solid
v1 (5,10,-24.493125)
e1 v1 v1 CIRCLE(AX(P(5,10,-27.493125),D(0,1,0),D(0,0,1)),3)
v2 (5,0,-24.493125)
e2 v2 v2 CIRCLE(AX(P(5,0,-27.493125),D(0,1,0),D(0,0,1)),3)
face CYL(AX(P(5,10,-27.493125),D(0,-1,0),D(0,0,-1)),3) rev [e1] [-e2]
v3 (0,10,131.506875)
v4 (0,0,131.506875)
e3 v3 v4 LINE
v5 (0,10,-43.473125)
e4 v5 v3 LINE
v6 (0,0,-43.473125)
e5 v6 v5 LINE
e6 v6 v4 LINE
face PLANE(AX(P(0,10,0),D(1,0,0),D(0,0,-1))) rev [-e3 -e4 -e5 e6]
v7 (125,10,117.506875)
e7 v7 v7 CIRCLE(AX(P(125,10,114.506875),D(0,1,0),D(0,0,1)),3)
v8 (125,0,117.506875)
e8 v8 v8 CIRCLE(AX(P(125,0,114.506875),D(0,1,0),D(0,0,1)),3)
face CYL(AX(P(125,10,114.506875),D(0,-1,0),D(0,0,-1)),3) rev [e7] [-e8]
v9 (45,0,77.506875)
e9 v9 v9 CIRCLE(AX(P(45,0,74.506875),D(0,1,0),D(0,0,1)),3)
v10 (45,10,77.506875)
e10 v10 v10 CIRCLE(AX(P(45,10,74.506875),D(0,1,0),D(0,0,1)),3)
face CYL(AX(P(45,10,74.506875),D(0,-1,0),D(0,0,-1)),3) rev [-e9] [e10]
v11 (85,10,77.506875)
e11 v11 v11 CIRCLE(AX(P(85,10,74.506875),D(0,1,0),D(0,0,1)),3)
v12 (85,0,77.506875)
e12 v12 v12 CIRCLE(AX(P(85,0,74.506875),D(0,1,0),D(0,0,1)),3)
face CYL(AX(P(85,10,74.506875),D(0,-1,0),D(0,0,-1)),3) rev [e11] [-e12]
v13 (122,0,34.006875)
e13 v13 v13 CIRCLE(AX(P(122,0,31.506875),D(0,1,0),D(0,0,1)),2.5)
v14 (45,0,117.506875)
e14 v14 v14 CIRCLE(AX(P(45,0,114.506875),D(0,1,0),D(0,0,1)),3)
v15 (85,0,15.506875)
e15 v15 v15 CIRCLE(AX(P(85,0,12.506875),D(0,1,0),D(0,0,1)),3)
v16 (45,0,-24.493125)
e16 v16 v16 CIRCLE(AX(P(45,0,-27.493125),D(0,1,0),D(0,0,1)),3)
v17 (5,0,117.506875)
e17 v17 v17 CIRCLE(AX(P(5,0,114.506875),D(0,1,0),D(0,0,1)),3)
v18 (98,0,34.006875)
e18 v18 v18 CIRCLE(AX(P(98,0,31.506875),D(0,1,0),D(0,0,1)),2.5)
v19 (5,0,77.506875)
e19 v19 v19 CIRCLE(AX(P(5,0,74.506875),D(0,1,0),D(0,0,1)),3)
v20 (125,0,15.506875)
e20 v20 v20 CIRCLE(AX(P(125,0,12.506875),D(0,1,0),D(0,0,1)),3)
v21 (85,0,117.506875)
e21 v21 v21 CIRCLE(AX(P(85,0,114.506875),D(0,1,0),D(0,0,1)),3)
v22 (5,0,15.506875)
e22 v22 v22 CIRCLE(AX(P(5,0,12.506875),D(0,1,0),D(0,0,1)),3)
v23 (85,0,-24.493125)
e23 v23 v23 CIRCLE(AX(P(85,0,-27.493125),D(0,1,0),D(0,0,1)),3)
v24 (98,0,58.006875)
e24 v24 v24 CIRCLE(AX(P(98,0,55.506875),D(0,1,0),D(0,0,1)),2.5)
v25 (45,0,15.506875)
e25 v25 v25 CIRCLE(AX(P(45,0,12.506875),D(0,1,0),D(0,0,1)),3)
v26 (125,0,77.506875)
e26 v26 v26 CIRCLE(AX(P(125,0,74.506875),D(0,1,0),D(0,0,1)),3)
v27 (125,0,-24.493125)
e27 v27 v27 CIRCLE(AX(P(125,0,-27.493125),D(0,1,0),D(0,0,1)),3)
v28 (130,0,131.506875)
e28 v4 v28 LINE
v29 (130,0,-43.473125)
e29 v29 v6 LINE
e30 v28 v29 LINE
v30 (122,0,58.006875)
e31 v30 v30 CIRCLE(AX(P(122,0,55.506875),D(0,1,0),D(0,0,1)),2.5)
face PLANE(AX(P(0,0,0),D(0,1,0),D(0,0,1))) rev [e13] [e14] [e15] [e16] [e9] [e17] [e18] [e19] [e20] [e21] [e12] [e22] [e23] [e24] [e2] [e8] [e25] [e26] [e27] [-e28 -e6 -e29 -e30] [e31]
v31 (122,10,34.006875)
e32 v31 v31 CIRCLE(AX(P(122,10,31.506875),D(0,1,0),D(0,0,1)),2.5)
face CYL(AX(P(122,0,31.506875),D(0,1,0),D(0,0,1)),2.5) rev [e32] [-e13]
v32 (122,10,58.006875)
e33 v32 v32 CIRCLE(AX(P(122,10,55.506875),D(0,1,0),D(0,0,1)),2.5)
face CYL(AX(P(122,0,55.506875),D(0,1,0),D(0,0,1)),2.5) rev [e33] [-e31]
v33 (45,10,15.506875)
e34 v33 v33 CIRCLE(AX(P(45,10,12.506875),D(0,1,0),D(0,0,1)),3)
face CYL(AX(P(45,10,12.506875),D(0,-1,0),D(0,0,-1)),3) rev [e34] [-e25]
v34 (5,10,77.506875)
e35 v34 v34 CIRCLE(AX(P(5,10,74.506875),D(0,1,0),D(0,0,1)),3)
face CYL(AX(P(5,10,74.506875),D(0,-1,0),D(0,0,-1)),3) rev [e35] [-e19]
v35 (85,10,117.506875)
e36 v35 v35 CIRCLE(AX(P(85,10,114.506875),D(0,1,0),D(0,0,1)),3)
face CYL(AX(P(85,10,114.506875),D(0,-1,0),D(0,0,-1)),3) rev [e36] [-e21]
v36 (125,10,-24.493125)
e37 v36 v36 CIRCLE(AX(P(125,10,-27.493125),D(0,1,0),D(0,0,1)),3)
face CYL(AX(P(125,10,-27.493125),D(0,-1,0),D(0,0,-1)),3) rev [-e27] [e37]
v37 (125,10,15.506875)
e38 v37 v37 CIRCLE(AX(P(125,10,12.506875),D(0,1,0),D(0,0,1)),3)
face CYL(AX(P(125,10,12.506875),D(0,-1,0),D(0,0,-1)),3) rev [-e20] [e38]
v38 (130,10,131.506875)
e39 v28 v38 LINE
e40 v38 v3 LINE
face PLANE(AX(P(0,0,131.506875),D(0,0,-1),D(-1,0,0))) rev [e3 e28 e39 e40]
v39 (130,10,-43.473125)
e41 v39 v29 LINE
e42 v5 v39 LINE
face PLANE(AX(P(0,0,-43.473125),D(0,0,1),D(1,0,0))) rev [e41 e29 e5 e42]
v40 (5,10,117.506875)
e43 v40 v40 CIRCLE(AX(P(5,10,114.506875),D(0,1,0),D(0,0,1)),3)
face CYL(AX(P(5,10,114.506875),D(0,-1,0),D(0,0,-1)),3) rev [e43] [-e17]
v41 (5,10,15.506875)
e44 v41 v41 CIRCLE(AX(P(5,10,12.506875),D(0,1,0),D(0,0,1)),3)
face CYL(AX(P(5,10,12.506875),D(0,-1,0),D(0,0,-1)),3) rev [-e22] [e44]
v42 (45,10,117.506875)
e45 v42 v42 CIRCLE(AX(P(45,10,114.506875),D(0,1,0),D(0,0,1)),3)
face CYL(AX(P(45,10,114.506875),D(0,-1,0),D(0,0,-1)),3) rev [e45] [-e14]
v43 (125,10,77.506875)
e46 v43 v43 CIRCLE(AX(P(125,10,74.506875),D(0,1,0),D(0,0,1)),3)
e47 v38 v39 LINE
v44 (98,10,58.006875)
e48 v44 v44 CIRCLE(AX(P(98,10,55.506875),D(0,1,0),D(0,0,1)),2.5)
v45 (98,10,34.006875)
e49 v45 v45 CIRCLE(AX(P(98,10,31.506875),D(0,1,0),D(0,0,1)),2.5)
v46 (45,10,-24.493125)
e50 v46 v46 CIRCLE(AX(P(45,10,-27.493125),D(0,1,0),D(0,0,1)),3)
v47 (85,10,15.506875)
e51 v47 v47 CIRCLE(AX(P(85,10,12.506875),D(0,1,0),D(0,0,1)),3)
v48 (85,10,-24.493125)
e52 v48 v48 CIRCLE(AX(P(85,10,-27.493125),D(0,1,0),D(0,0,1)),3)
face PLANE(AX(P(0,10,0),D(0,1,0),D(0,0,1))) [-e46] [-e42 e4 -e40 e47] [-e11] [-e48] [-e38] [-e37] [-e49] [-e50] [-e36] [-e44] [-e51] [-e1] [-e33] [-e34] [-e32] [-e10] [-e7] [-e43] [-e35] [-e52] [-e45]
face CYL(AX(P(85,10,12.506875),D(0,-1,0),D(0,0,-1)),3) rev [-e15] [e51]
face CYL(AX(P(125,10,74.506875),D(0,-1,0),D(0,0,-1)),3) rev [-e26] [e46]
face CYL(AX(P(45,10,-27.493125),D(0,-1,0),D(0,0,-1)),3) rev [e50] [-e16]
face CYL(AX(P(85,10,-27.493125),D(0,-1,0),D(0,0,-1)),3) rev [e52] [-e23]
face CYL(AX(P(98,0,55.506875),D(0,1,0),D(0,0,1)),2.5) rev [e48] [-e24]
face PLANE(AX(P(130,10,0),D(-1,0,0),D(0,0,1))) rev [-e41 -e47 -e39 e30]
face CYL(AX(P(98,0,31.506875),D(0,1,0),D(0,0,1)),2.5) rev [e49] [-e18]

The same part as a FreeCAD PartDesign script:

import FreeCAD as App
import Part
import Sketcher
Q = App.Units.Quantity


def add_polygon(sketch, points):
    """Adds a closed chain of lines whose ends are joined by coincident constraints."""
    first, n = sketch.GeometryCount, len(points)
    for a, b in zip(points, points[1:] + points[:1]):
        sketch.addGeometry(Part.LineSegment(App.Vector(*a, 0), App.Vector(*b, 0)), False)
    for i in range(n):
        sketch.addConstraint(Sketcher.Constraint("Coincident", first + i, 2, first + (i + 1) % n, 1))

doc = App.newDocument("Part")
body = doc.addObject("PartDesign::Body", "Body")

sketch1 = body.newObject("Sketcher::SketchObject", "Sketch")
sketch1.AttachmentSupport = (doc.getObject("XZ_Plane"), [""])
sketch1.MapMode = "FlatFace"
add_polygon(sketch1, [(0, -34.5), (0, 121.5), (130, 121.5), (130, -34.5)])
sketch1.addGeometry(Part.Circle(App.Vector(5, 114.5, 0), App.Vector(0, 0, 1), 3), False)
sketch1.addGeometry(Part.Circle(App.Vector(45, 114.5, 0), App.Vector(0, 0, 1), 3), False)
sketch1.addGeometry(Part.Circle(App.Vector(5, 74.5, 0), App.Vector(0, 0, 1), 3), False)
sketch1.addGeometry(Part.Circle(App.Vector(45, 74.5, 0), App.Vector(0, 0, 1), 3), False)
sketch1.addGeometry(Part.Circle(App.Vector(85, 114.5, 0), App.Vector(0, 0, 1), 3), False)
sketch1.addGeometry(Part.Circle(App.Vector(125, 114.5, 0), App.Vector(0, 0, 1), 3), False)
sketch1.addGeometry(Part.Circle(App.Vector(85, 74.5, 0), App.Vector(0, 0, 1), 3), False)
sketch1.addGeometry(Part.Circle(App.Vector(125, 74.5, 0), App.Vector(0, 0, 1), 3), False)
sketch1.addGeometry(Part.Circle(App.Vector(5, 12.5, 0), App.Vector(0, 0, 1), 3), False)
sketch1.addGeometry(Part.Circle(App.Vector(45, 12.5, 0), App.Vector(0, 0, 1), 3), False)
sketch1.addGeometry(Part.Circle(App.Vector(5, -27.5, 0), App.Vector(0, 0, 1), 3), False)
sketch1.addGeometry(Part.Circle(App.Vector(45, -27.5, 0), App.Vector(0, 0, 1), 3), False)
sketch1.addGeometry(Part.Circle(App.Vector(85, 12.5, 0), App.Vector(0, 0, 1), 3), False)
sketch1.addGeometry(Part.Circle(App.Vector(125, 12.5, 0), App.Vector(0, 0, 1), 3), False)
sketch1.addGeometry(Part.Circle(App.Vector(85, -27.5, 0), App.Vector(0, 0, 1), 3), False)
sketch1.addGeometry(Part.Circle(App.Vector(125, -27.5, 0), App.Vector(0, 0, 1), 3), False)
sketch1.addConstraint([
    Sketcher.Constraint("Vertical", 0),
    Sketcher.Constraint("Horizontal", 1),
    Sketcher.Constraint("Vertical", 2),
    Sketcher.Constraint("Horizontal", 3),
    Sketcher.Constraint("Equal", 4, 5),
    Sketcher.Constraint("Equal", 5, 6),
    Sketcher.Constraint("Equal", 6, 7),
    Sketcher.Constraint("Equal", 7, 8),
    Sketcher.Constraint("Equal", 8, 9),
    Sketcher.Constraint("Equal", 9, 10),
    Sketcher.Constraint("Equal", 10, 11),
    Sketcher.Constraint("Equal", 11, 12),
    Sketcher.Constraint("Equal", 12, 13),
    Sketcher.Constraint("Equal", 13, 14),
    Sketcher.Constraint("Equal", 14, 15),
    Sketcher.Constraint("Equal", 15, 16),
    Sketcher.Constraint("Equal", 16, 17),
    Sketcher.Constraint("Equal", 17, 18),
    Sketcher.Constraint("Equal", 18, 19),
    Sketcher.Constraint("PointOnObject", 0, 2, -2),
    Sketcher.Constraint("Horizontal", 4, 3, 5, 3),
    Sketcher.Constraint("Horizontal", 6, 3, 7, 3),
    Sketcher.Constraint("Horizontal", 5, 3, 8, 3),
    Sketcher.Constraint("Horizontal", 8, 3, 9, 3),
    Sketcher.Constraint("Horizontal", 7, 3, 10, 3),
    Sketcher.Constraint("Horizontal", 10, 3, 11, 3),
    Sketcher.Constraint("Horizontal", 12, 3, 13, 3),
    Sketcher.Constraint("Horizontal", 14, 3, 15, 3),
    Sketcher.Constraint("Horizontal", 13, 3, 16, 3),
    Sketcher.Constraint("Horizontal", 16, 3, 17, 3),
    Sketcher.Constraint("Horizontal", 15, 3, 18, 3),
    Sketcher.Constraint("Horizontal", 18, 3, 19, 3),
    Sketcher.Constraint("Vertical", 4, 3, 6, 3),
    Sketcher.Constraint("Vertical", 5, 3, 7, 3),
    Sketcher.Constraint("Vertical", 8, 3, 10, 3),
    Sketcher.Constraint("Vertical", 9, 3, 11, 3),
    Sketcher.Constraint("Vertical", 6, 3, 12, 3),
    Sketcher.Constraint("Vertical", 7, 3, 13, 3),
    Sketcher.Constraint("Vertical", 12, 3, 14, 3),
    Sketcher.Constraint("Vertical", 13, 3, 15, 3),
    Sketcher.Constraint("Vertical", 10, 3, 16, 3),
    Sketcher.Constraint("Vertical", 11, 3, 17, 3),
    Sketcher.Constraint("Vertical", 16, 3, 18, 3),
    Sketcher.Constraint("Vertical", 17, 3, 19, 3),
    Sketcher.Constraint("Diameter", 4, Q("6 mm")),
    Sketcher.Constraint("DistanceX", 1, 1, 1, 2, Q("130 mm")),
    Sketcher.Constraint("DistanceY", 0, 1, 0, 2, Q("156 mm")),
    Sketcher.Constraint("DistanceX", -1, 1, 4, 3, Q("5 mm")),
    Sketcher.Constraint("DistanceX", -1, 1, 5, 3, Q("45 mm")),
    Sketcher.Constraint("DistanceX", -1, 1, 8, 3, Q("85 mm")),
    Sketcher.Constraint("DistanceX", -1, 1, 9, 3, Q("125 mm")),
    Sketcher.Constraint("DistanceY", 6, 3, 4, 3, Q("40 mm")),
    Sketcher.Constraint("DistanceY", 12, 3, 6, 3, Q("62 mm")),
    Sketcher.Constraint("DistanceY", 14, 3, 12, 3, Q("40 mm")),
    Sketcher.Constraint("DistanceY", 4, 3, 0, 2, Q("7 mm")),
    Sketcher.Constraint("DistanceY", -1, 1, 4, 3, Q("114.506875 mm")),
])
pad1 = body.newObject("PartDesign::Pad", "Pad")
pad1.Profile = sketch1
pad1.Length = 10
pad1.Reversed = True

sketch2 = body.newObject("Sketcher::SketchObject", "Sketch001")
sketch2.AttachmentSupport = (doc.getObject("XZ_Plane"), [""])
sketch2.MapMode = "FlatFace"
sketch2.AttachmentOffset = App.Placement(App.Vector(0, 0, -10), App.Rotation())
sketch2.addGeometry([
    Part.Circle(App.Vector(98, 31.5, 0), App.Vector(0, 0, 1), 2.5),
    Part.Circle(App.Vector(98, 55.5, 0), App.Vector(0, 0, 1), 2.5),
    Part.Circle(App.Vector(122, 55.5, 0), App.Vector(0, 0, 1), 2.5),
    Part.Circle(App.Vector(122, 31.5, 0), App.Vector(0, 0, 1), 2.5),
], False)
sketch2.addConstraint([
    Sketcher.Constraint("Equal", 0, 1),
    Sketcher.Constraint("Equal", 1, 2),
    Sketcher.Constraint("Equal", 2, 3),
    Sketcher.Constraint("Horizontal", 1, 3, 2, 3),
    Sketcher.Constraint("Horizontal", 0, 3, 3, 3),
    Sketcher.Constraint("Vertical", 0, 3, 1, 3),
    Sketcher.Constraint("Vertical", 2, 3, 3, 3),
    Sketcher.Constraint("Diameter", 0, Q("5 mm")),
    Sketcher.Constraint("DistanceX", -1, 1, 0, 3, Q("98 mm")),
    Sketcher.Constraint("DistanceX", -1, 1, 2, 3, Q("122 mm")),
    Sketcher.Constraint("DistanceY", 0, 3, 1, 3, Q("24 mm")),
    Sketcher.Constraint("DistanceY", -1, 1, 0, 3, Q("31.506875 mm")),
])
pocket1 = body.newObject("PartDesign::Pocket", "Pocket")
pocket1.Profile = sketch2
pocket1.Length = 10
pocket1.Reversed = True

sketch3 = body.newObject("Sketcher::SketchObject", "Sketch002")
sketch3.AttachmentSupport = (doc.getObject("XY_Plane"), [""])
sketch3.MapMode = "FlatFace"
sketch3.AttachmentOffset = App.Placement(App.Vector(0, 0, -34.493125), App.Rotation())
add_polygon(sketch3, [(130, 10), (130, 0), (0, 0), (0, 10)])
sketch3.addConstraint([
    Sketcher.Constraint("Vertical", 0),
    Sketcher.Constraint("Horizontal", 1),
    Sketcher.Constraint("Vertical", 2),
    Sketcher.Constraint("Horizontal", 3),
    Sketcher.Constraint("Coincident", 1, 2, -1, 1),
    Sketcher.Constraint("DistanceX", 1, 2, 1, 1, Q("130 mm")),
    Sketcher.Constraint("DistanceY", 0, 2, 0, 1, Q("10 mm")),
])
pad2 = body.newObject("PartDesign::Pad", "Pad001")
pad2.Profile = sketch3
pad2.Length = 10
pad2.Reversed = True

sketch4 = body.newObject("Sketcher::SketchObject", "Sketch003")
sketch4.AttachmentSupport = (doc.getObject("XY_Plane"), [""])
sketch4.MapMode = "FlatFace"
sketch4.AttachmentOffset = App.Placement(App.Vector(0, 0, -44.493125), App.Rotation())
add_polygon(sketch4, [(130, 10), (130, 0), (0, 0), (0, 10)])
sketch4.addConstraint([
    Sketcher.Constraint("Vertical", 0),
    Sketcher.Constraint("Horizontal", 1),
    Sketcher.Constraint("Vertical", 2),
    Sketcher.Constraint("Horizontal", 3),
    Sketcher.Constraint("Coincident", 1, 2, -1, 1),
    Sketcher.Constraint("DistanceX", 1, 2, 1, 1, Q("130 mm")),
    Sketcher.Constraint("DistanceY", 0, 2, 0, 1, Q("10 mm")),
])
pocket2 = body.newObject("PartDesign::Pocket", "Pocket001")
pocket2.Profile = sketch4
pocket2.Length = 10
pocket2.Reversed = True

sketch5 = body.newObject("Sketcher::SketchObject", "Sketch004")
sketch5.AttachmentSupport = (doc.getObject("XY_Plane"), [""])
sketch5.MapMode = "FlatFace"
sketch5.AttachmentOffset = App.Placement(App.Vector(0, 0, 121.506875), App.Rotation())
add_polygon(sketch5, [(0, 10), (0, 0), (130, 0), (130, 10)])
sketch5.addConstraint([
    Sketcher.Constraint("Vertical", 0),
    Sketcher.Constraint("Horizontal", 1),
    Sketcher.Constraint("Vertical", 2),
    Sketcher.Constraint("Horizontal", 3),
    Sketcher.Constraint("Coincident", 0, 2, -1, 1),
    Sketcher.Constraint("DistanceX", 1, 1, 1, 2, Q("130 mm")),
    Sketcher.Constraint("DistanceY", 0, 2, 0, 1, Q("10 mm")),
])
pad3 = body.newObject("PartDesign::Pad", "Pad002")
pad3.Profile = sketch5
pad3.Length = 10

sketch6 = body.newObject("Sketcher::SketchObject", "Sketch005")
sketch6.AttachmentSupport = (doc.getObject("XY_Plane"), [""])
sketch6.MapMode = "FlatFace"
sketch6.AttachmentOffset = App.Placement(App.Vector(0, 0, -34.493125), App.Rotation())
add_polygon(sketch6, [(130, 10), (130, 0), (0, 0), (0, 10)])
sketch6.addConstraint([
    Sketcher.Constraint("Vertical", 0),
    Sketcher.Constraint("Horizontal", 1),
    Sketcher.Constraint("Vertical", 2),
    Sketcher.Constraint("Horizontal", 3),
    Sketcher.Constraint("Coincident", 1, 2, -1, 1),
    Sketcher.Constraint("DistanceX", 1, 2, 1, 1, Q("130 mm")),
    Sketcher.Constraint("DistanceY", 0, 2, 0, 1, Q("10 mm")),
])
pad4 = body.newObject("PartDesign::Pad", "Pad003")
pad4.Profile = sketch6
pad4.Length = 8.98
pad4.Reversed = True

doc.recompute()
